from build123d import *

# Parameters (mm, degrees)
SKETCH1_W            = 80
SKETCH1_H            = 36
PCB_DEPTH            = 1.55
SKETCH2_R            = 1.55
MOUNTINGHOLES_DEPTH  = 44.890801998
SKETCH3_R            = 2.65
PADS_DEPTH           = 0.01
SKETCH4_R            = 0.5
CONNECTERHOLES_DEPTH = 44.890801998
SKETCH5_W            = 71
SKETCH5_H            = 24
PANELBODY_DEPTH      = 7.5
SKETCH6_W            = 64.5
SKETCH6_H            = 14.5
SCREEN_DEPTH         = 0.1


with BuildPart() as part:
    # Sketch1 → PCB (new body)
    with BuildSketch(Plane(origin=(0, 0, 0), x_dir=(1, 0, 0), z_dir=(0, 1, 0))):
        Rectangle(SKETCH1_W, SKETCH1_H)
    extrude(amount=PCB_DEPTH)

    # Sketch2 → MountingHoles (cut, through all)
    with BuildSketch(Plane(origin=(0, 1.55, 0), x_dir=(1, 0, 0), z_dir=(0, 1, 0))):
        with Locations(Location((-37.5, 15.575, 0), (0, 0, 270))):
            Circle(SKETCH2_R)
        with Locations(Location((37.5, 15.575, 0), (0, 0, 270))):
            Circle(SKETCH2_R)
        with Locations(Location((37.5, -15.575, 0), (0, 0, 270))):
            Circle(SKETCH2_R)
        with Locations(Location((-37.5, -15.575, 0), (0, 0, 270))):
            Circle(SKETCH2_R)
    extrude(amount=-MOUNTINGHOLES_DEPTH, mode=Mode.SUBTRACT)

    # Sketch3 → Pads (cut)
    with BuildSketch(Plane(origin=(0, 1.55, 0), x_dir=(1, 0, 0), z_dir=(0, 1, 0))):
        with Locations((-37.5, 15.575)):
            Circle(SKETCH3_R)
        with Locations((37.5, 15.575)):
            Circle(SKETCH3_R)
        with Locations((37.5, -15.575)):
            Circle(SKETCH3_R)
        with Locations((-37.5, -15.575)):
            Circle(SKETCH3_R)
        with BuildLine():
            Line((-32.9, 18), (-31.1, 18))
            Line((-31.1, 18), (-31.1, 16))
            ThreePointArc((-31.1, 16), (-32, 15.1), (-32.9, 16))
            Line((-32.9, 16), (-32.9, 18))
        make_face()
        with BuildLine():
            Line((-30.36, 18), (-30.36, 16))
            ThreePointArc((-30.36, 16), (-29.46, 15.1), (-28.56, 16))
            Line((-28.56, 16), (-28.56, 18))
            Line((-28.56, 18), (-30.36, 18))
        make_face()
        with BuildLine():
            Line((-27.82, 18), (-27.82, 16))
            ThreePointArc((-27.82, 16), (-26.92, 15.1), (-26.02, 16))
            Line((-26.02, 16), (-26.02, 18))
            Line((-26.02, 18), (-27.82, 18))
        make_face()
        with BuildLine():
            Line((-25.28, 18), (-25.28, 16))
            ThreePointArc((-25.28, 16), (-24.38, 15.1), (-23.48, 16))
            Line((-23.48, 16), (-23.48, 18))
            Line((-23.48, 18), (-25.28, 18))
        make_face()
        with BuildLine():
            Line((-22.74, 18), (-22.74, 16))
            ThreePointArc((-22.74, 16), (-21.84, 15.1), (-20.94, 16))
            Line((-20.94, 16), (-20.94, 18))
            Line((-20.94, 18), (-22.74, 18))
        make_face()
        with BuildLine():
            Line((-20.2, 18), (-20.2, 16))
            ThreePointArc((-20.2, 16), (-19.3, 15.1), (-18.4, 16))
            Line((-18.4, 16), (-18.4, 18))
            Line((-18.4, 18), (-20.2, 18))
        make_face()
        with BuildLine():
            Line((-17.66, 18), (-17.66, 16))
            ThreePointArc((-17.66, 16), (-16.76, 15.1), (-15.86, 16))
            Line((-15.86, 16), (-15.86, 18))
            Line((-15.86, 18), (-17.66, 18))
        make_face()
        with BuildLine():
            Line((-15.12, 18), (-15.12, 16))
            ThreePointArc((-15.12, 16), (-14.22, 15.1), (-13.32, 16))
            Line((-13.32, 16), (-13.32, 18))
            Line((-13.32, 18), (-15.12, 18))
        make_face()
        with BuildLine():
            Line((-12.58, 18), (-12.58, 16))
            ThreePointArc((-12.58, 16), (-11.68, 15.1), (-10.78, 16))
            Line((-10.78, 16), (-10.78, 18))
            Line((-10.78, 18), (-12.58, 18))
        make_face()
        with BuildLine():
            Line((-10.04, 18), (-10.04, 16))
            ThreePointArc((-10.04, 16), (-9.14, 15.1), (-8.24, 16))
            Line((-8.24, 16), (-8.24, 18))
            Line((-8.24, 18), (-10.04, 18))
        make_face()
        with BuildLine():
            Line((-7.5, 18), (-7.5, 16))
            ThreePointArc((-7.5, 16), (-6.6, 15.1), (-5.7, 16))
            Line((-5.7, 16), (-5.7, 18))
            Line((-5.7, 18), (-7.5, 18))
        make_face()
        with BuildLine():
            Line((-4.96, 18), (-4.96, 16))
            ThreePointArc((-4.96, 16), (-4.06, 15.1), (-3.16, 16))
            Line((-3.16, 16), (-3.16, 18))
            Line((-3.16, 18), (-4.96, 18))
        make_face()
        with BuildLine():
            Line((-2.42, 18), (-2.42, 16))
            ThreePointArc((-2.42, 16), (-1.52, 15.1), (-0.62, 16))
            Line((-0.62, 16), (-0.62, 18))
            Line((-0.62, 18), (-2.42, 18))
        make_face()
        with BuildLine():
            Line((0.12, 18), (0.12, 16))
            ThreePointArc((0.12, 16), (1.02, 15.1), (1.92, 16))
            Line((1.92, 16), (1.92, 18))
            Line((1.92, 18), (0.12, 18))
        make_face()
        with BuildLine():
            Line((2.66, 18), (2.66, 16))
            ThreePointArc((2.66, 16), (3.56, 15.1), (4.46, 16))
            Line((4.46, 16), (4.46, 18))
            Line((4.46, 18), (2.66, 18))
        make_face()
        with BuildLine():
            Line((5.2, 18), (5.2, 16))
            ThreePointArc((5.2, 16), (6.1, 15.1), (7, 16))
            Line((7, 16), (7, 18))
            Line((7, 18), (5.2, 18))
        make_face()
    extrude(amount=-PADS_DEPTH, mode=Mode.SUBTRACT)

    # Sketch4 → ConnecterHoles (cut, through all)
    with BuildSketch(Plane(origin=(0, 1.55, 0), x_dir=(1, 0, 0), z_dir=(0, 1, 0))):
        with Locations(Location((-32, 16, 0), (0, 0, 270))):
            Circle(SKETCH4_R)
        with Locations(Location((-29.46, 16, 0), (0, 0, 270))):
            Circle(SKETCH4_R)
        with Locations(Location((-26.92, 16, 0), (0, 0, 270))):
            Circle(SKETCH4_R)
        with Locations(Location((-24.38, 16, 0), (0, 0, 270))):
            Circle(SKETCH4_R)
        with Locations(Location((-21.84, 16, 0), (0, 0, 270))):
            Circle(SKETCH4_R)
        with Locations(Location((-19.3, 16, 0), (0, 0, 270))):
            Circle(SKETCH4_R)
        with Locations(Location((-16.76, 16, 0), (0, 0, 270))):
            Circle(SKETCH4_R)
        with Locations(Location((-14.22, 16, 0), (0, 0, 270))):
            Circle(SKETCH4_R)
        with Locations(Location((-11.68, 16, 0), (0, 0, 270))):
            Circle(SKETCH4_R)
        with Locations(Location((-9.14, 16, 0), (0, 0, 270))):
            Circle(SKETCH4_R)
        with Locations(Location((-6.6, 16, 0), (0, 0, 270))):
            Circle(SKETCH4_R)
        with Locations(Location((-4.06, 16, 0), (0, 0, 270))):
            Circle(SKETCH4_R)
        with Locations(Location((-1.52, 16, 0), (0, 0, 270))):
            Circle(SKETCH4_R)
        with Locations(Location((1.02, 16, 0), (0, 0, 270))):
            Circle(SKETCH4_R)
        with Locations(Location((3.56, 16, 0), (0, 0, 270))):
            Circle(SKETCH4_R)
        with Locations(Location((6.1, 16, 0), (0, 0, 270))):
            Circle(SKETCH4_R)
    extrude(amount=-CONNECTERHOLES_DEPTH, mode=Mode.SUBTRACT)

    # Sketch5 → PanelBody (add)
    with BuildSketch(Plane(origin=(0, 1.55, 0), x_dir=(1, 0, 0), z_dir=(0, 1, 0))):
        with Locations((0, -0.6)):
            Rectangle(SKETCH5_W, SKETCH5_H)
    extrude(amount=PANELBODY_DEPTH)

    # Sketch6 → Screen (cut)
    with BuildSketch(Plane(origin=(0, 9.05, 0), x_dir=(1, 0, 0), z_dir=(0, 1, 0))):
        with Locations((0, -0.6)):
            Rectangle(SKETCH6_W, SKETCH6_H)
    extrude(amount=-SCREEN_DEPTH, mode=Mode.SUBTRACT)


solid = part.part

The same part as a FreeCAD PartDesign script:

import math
import FreeCAD as App
import Part
import Sketcher
from FreeCAD import Vector
Q = App.Units.Quantity


def add_polygon(sketch, points):
    """Adds a closed chain of lines whose ends are joined by coincident constraints."""
    first, n = sketch.GeometryCount, len(points)
    for a, b in zip(points, points[1:] + points[:1]):
        sketch.addGeometry(Part.LineSegment(App.Vector(*a, 0), App.Vector(*b, 0)), False)
    for i in range(n):
        sketch.addConstraint(Sketcher.Constraint("Coincident", first + i, 2, first + (i + 1) % n, 1))

doc = App.newDocument("Part")
params = doc.addObject("Spreadsheet::Sheet", "Params")
for row, (alias, value) in enumerate([
    ("sketch1_width", "80 mm"),
    ("sketch1_height", "36 mm"),
    ("pad1_length", "1.55 mm"),
    ("sketch2_diameter", "3.1 mm"),
    ("sketch3_diameter", "5.3 mm"),
    ("sketch3_radius", "0.9 mm"),
    ("sketch3_height", "2 mm"),
    ("pocket2_length", "0.01 mm"),
    ("sketch4_diameter", "1 mm"),
    ("sketch5_width", "71 mm"),
    ("sketch5_height", "24 mm"),
    ("pad2_length", "7.5 mm"),
    ("sketch6_width", "64.5 mm"),
    ("sketch6_height", "14.5 mm"),
    ("pocket4_length", "0.1 mm"),
], start=1):
    params.set(f"A{row}", alias)
    params.set(f"B{row}", "=" + value)
    params.setAlias(f"B{row}", alias)

body = doc.addObject("PartDesign::Body", "Body")

# Sketch on XZ plane
sketch1 = body.newObject("Sketcher::SketchObject", "Sketch")
sketch1.AttachmentSupport = (doc.getObject("XZ_Plane"), [""])
sketch1.MapMode = "FlatFace"
add_polygon(sketch1, [(-40, -18), (-40, 18), (40, 18), (40, -18)])  # lines 0-3
sketch1.addConstraint(Sketcher.Constraint("Vertical", 0))
sketch1.addConstraint(Sketcher.Constraint("Horizontal", 1))
sketch1.addConstraint(Sketcher.Constraint("Vertical", 2))
sketch1.addConstraint(Sketcher.Constraint("Horizontal", 3))
sketch1.addConstraint(Sketcher.Constraint("Symmetric", 0, 2, 2, 2, -1, 1))
sketch1.addConstraint(Sketcher.Constraint("DistanceX", 1, 1, 1, 2, Q("80 mm")))
sketch1.addConstraint(Sketcher.Constraint("DistanceY", 0, 1, 0, 2, Q("36 mm")))
sketch1.setExpression("Constraints[9]", "Params.sketch1_width")
sketch1.setExpression("Constraints[10]", "Params.sketch1_height")
pad1 = body.newObject("PartDesign::Pad", "Pad")
pad1.Profile = sketch1
pad1.setExpression("Length", "Params.pad1_length")
pad1.Reversed = True

# Sketch on XZ plane
sketch2 = body.newObject("Sketcher::SketchObject", "Sketch001")
sketch2.AttachmentSupport = (doc.getObject("XZ_Plane"), [""])
sketch2.MapMode = "FlatFace"
sketch2.AttachmentOffset = App.Placement(Vector(0, 0, -1.55), App.Rotation())
sketch2.addGeometry(Part.Circle(Vector(-37.5, -15.575, 0), Vector(0, 0, 1), 1.55), False)
sketch2.addGeometry(Part.Circle(Vector(37.5, -15.575, 0), Vector(0, 0, 1), 1.55), False)
sketch2.addGeometry(Part.Circle(Vector(37.5, 15.575, 0), Vector(0, 0, 1), 1.55), False)
sketch2.addGeometry(Part.Circle(Vector(-37.5, 15.575, 0), Vector(0, 0, 1), 1.55), False)
sketch2.addConstraint(Sketcher.Constraint("Equal", 0, 1))
sketch2.addConstraint(Sketcher.Constraint("Equal", 1, 2))
sketch2.addConstraint(Sketcher.Constraint("Equal", 2, 3))
sketch2.addConstraint(Sketcher.Constraint("Symmetric", 0, 3, 2, 3, -1, 1))
sketch2.addConstraint(Sketcher.Constraint("Symmetric", 1, 3, 3, 3, -1, 1))
sketch2.addConstraint(Sketcher.Constraint("Symmetric", 0, 3, 1, 3, -2))
sketch2.addConstraint(Sketcher.Constraint("Diameter", 0, Q("3.1 mm")))
sketch2.addConstraint(Sketcher.Constraint("DistanceX", 0, 3, 1, 3, Q("75 mm")))
sketch2.addConstraint(Sketcher.Constraint("DistanceY", 1, 3, 2, 3, Q("31.15 mm")))
sketch2.setExpression("Constraints[6]", "Params.sketch2_diameter")
pocket1 = body.newObject("PartDesign::Pocket", "Pocket")
pocket1.Profile = sketch2
pocket1.Type = "ThroughAll"
pocket1.Reversed = True

# Sketch on XZ plane
sketch3 = body.newObject("Sketcher::SketchObject", "Sketch002")
sketch3.AttachmentSupport = (doc.getObject("XZ_Plane"), [""])
sketch3.MapMode = "FlatFace"
sketch3.AttachmentOffset = App.Placement(Vector(0, 0, -1.55), App.Rotation())
sketch3.addGeometry(Part.Circle(Vector(-37.5, -15.575, 0), Vector(0, 0, 1), 2.65), False)
sketch3.addGeometry(Part.Circle(Vector(37.5, -15.575, 0), Vector(0, 0, 1), 2.65), False)
sketch3.addGeometry(Part.Circle(Vector(37.5, 15.575, 0), Vector(0, 0, 1), 2.65), False)
sketch3.addGeometry(Part.Circle(Vector(-37.5, 15.575, 0), Vector(0, 0, 1), 2.65), False)
sketch3.addGeometry(Part.LineSegment(Vector(-31.1, -18, 0), Vector(-32.9, -18, 0)), False)
sketch3.addGeometry(Part.LineSegment(Vector(-32.9, -18, 0), Vector(-32.9, -16, 0)), False)
sketch3.addGeometry(Part.ArcOfCircle(Part.Circle(Vector(-32, -16, 0), Vector(0, 0, 1), 0.9), math.radians(0), math.radians(180)), False)
sketch3.addGeometry(Part.LineSegment(Vector(-31.1, -16, 0), Vector(-31.1, -18, 0)), False)
sketch3.addGeometry(Part.LineSegment(Vector(-30.36, -18, 0), Vector(-30.36, -16, 0)), False)
sketch3.addGeometry(Part.ArcOfCircle(Part.Circle(Vector(-29.46, -16, 0), Vector(0, 0, 1), 0.9), math.radians(0), math.radians(180)), False)
sketch3.addGeometry(Part.LineSegment(Vector(-28.56, -16, 0), Vector(-28.56, -18, 0)), False)
sketch3.addGeometry(Part.LineSegment(Vector(-28.56, -18, 0), Vector(-30.36, -18, 0)), False)
sketch3.addGeometry(Part.LineSegment(Vector(-27.82, -18, 0), Vector(-27.82, -16, 0)), False)
sketch3.addGeometry(Part.ArcOfCircle(Part.Circle(Vector(-26.92, -16, 0), Vector(0, 0, 1), 0.9), math.radians(0), math.radians(180)), False)
sketch3.addGeometry(Part.LineSegment(Vector(-26.02, -16, 0), Vector(-26.02, -18, 0)), False)
sketch3.addGeometry(Part.LineSegment(Vector(-26.02, -18, 0), Vector(-27.82, -18, 0)), False)
sketch3.addGeometry(Part.LineSegment(Vector(-25.28, -18, 0), Vector(-25.28, -16, 0)), False)
sketch3.addGeometry(Part.ArcOfCircle(Part.Circle(Vector(-24.38, -16, 0), Vector(0, 0, 1), 0.9), math.radians(0), math.radians(180)), False)
sketch3.addGeometry(Part.LineSegment(Vector(-23.48, -16, 0), Vector(-23.48, -18, 0)), False)
sketch3.addGeometry(Part.LineSegment(Vector(-23.48, -18, 0), Vector(-25.28, -18, 0)), False)
sketch3.addGeometry(Part.LineSegment(Vector(-22.74, -18, 0), Vector(-22.74, -16, 0)), False)
sketch3.addGeometry(Part.ArcOfCircle(Part.Circle(Vector(-21.84, -16, 0), Vector(0, 0, 1), 0.9), math.radians(0), math.radians(180)), False)
sketch3.addGeometry(Part.LineSegment(Vector(-20.94, -16, 0), Vector(-20.94, -18, 0)), False)
sketch3.addGeometry(Part.LineSegment(Vector(-20.94, -18, 0), Vector(-22.74, -18, 0)), False)
sketch3.addGeometry(Part.LineSegment(Vector(-20.2, -18, 0), Vector(-20.2, -16, 0)), False)
sketch3.addGeometry(Part.ArcOfCircle(Part.Circle(Vector(-19.3, -16, 0), Vector(0, 0, 1), 0.9), math.radians(0), math.radians(180)), False)
sketch3.addGeometry(Part.LineSegment(Vector(-18.4, -16, 0), Vector(-18.4, -18, 0)), False)
sketch3.addGeometry(Part.LineSegment(Vector(-18.4, -18, 0), Vector(-20.2, -18, 0)), False)
sketch3.addGeometry(Part.LineSegment(Vector(-17.66, -18, 0), Vector(-17.66, -16, 0)), False)
sketch3.addGeometry(Part.ArcOfCircle(Part.Circle(Vector(-16.76, -16, 0), Vector(0, 0, 1), 0.9), math.radians(0), math.radians(180)), False)
sketch3.addGeometry(Part.LineSegment(Vector(-15.86, -16, 0), Vector(-15.86, -18, 0)), False)
sketch3.addGeometry(Part.LineSegment(Vector(-15.86, -18, 0), Vector(-17.66, -18, 0)), False)
sketch3.addGeometry(Part.LineSegment(Vector(-15.12, -18, 0), Vector(-15.12, -16, 0)), False)
sketch3.addGeometry(Part.ArcOfCircle(Part.Circle(Vector(-14.22, -16, 0), Vector(0, 0, 1), 0.9), math.radians(0), math.radians(180)), False)
sketch3.addGeometry(Part.LineSegment(Vector(-13.32, -16, 0), Vector(-13.32, -18, 0)), False)
sketch3.addGeometry(Part.LineSegment(Vector(-13.32, -18, 0), Vector(-15.12, -18, 0)), False)
sketch3.addGeometry(Part.LineSegment(Vector(-12.58, -18, 0), Vector(-12.58, -16, 0)), False)
sketch3.addGeometry(Part.ArcOfCircle(Part.Circle(Vector(-11.68, -16, 0), Vector(0, 0, 1), 0.9), math.radians(0), math.radians(180)), False)
sketch3.addGeometry(Part.LineSegment(Vector(-10.78, -16, 0), Vector(-10.78, -18, 0)), False)
sketch3.addGeometry(Part.LineSegment(Vector(-10.78, -18, 0), Vector(-12.58, -18, 0)), False)
sketch3.addGeometry(Part.LineSegment(Vector(-10.04, -18, 0), Vector(-10.04, -16, 0)), False)
sketch3.addGeometry(Part.ArcOfCircle(Part.Circle(Vector(-9.14, -16, 0), Vector(0, 0, 1), 0.9), math.radians(0), math.radians(180)), False)
sketch3.addGeometry(Part.LineSegment(Vector(-8.24, -16, 0), Vector(-8.24, -18, 0)), False)
sketch3.addGeometry(Part.LineSegment(Vector(-8.24, -18, 0), Vector(-10.04, -18, 0)), False)
sketch3.addGeometry(Part.LineSegment(Vector(-7.5, -18, 0), Vector(-7.5, -16, 0)), False)
sketch3.addGeometry(Part.ArcOfCircle(Part.Circle(Vector(-6.6, -16, 0), Vector(0, 0, 1), 0.9), math.radians(0), math.radians(180)), False)
sketch3.addGeometry(Part.LineSegment(Vector(-5.7, -16, 0), Vector(-5.7, -18, 0)), False)
sketch3.addGeometry(Part.LineSegment(Vector(-5.7, -18, 0), Vector(-7.5, -18, 0)), False)
sketch3.addGeometry(Part.LineSegment(Vector(-4.96, -18, 0), Vector(-4.96, -16, 0)), False)
sketch3.addGeometry(Part.ArcOfCircle(Part.Circle(Vector(-4.06, -16, 0), Vector(0, 0, 1), 0.9), math.radians(0), math.radians(180)), False)
sketch3.addGeometry(Part.LineSegment(Vector(-3.16, -16, 0), Vector(-3.16, -18, 0)), False)
sketch3.addGeometry(Part.LineSegment(Vector(-3.16, -18, 0), Vector(-4.96, -18, 0)), False)
sketch3.addGeometry(Part.LineSegment(Vector(-2.42, -18, 0), Vector(-2.42, -16, 0)), False)
sketch3.addGeometry(Part.ArcOfCircle(Part.Circle(Vector(-1.52, -16, 0), Vector(0, 0, 1), 0.9), math.radians(0), math.radians(180)), False)
sketch3.addGeometry(Part.LineSegment(Vector(-0.62, -16, 0), Vector(-0.62, -18, 0)), False)
sketch3.addGeometry(Part.LineSegment(Vector(-0.62, -18, 0), Vector(-2.42, -18, 0)), False)
sketch3.addGeometry(Part.LineSegment(Vector(0.12, -18, 0), Vector(0.12, -16, 0)), False)
sketch3.addGeometry(Part.ArcOfCircle(Part.Circle(Vector(1.02, -16, 0), Vector(0, 0, 1), 0.9), math.radians(0), math.radians(180)), False)
sketch3.addGeometry(Part.LineSegment(Vector(1.92, -16, 0), Vector(1.92, -18, 0)), False)
sketch3.addGeometry(Part.LineSegment(Vector(1.92, -18, 0), Vector(0.12, -18, 0)), False)
sketch3.addGeometry(Part.LineSegment(Vector(2.66, -18, 0), Vector(2.66, -16, 0)), False)
sketch3.addGeometry(Part.ArcOfCircle(Part.Circle(Vector(3.56, -16, 0), Vector(0, 0, 1), 0.9), math.radians(0), math.radians(180)), False)
sketch3.addGeometry(Part.LineSegment(Vector(4.46, -16, 0), Vector(4.46, -18, 0)), False)
sketch3.addGeometry(Part.LineSegment(Vector(4.46, -18, 0), Vector(2.66, -18, 0)), False)
sketch3.addGeometry(Part.LineSegment(Vector(5.2, -18, 0), Vector(5.2, -16, 0)), False)
sketch3.addGeometry(Part.ArcOfCircle(Part.Circle(Vector(6.1, -16, 0), Vector(0, 0, 1), 0.9), math.radians(0), math.radians(180)), False)
sketch3.addGeometry(Part.LineSegment(Vector(7, -16, 0), Vector(7, -18, 0)), False)
sketch3.addGeometry(Part.LineSegment(Vector(7, -18, 0), Vector(5.2, -18, 0)), False)
sketch3.addConstraint(Sketcher.Constraint("Coincident", 4, 2, 5, 1))
sketch3.addConstraint(Sketcher.Constraint("Tangent", 5, 2, 6, 2))
sketch3.addConstraint(Sketcher.Constraint("Tangent", 6, 1, 7, 1))
sketch3.addConstraint(Sketcher.Constraint("Coincident", 7, 2, 4, 1))
sketch3.addConstraint(Sketcher.Constraint("Tangent", 8, 2, 9, 2))
sketch3.addConstraint(Sketcher.Constraint("Tangent", 9, 1, 10, 1))
sketch3.addConstraint(Sketcher.Constraint("Coincident", 10, 2, 11, 1))
sketch3.addConstraint(Sketcher.Constraint("Coincident", 11, 2, 8, 1))
sketch3.addConstraint(Sketcher.Constraint("Tangent", 12, 2, 13, 2))
sketch3.addConstraint(Sketcher.Constraint("Tangent", 13, 1, 14, 1))
sketch3.addConstraint(Sketcher.Constraint("Coincident", 14, 2, 15, 1))
sketch3.addConstraint(Sketcher.Constraint("Coincident", 15, 2, 12, 1))
sketch3.addConstraint(Sketcher.Constraint("Tangent", 16, 2, 17, 2))
sketch3.addConstraint(Sketcher.Constraint("Tangent", 17, 1, 18, 1))
sketch3.addConstraint(Sketcher.Constraint("Coincident", 18, 2, 19, 1))
sketch3.addConstraint(Sketcher.Constraint("Coincident", 19, 2, 16, 1))
sketch3.addConstraint(Sketcher.Constraint("Tangent", 20, 2, 21, 2))
sketch3.addConstraint(Sketcher.Constraint("Tangent", 21, 1, 22, 1))
sketch3.addConstraint(Sketcher.Constraint("Coincident", 22, 2, 23, 1))
sketch3.addConstraint(Sketcher.Constraint("Coincident", 23, 2, 20, 1))
sketch3.addConstraint(Sketcher.Constraint("Tangent", 24, 2, 25, 2))
sketch3.addConstraint(Sketcher.Constraint("Tangent", 25, 1, 26, 1))
sketch3.addConstraint(Sketcher.Constraint("Coincident", 26, 2, 27, 1))
sketch3.addConstraint(Sketcher.Constraint("Coincident", 27, 2, 24, 1))
sketch3.addConstraint(Sketcher.Constraint("Tangent", 28, 2, 29, 2))
sketch3.addConstraint(Sketcher.Constraint("Tangent", 29, 1, 30, 1))
sketch3.addConstraint(Sketcher.Constraint("Coincident", 30, 2, 31, 1))
sketch3.addConstraint(Sketcher.Constraint("Coincident", 31, 2, 28, 1))
sketch3.addConstraint(Sketcher.Constraint("Tangent", 32, 2, 33, 2))
sketch3.addConstraint(Sketcher.Constraint("Tangent", 33, 1, 34, 1))
sketch3.addConstraint(Sketcher.Constraint("Coincident", 34, 2, 35, 1))
sketch3.addConstraint(Sketcher.Constraint("Coincident", 35, 2, 32, 1))
sketch3.addConstraint(Sketcher.Constraint("Tangent", 36, 2, 37, 2))
sketch3.addConstraint(Sketcher.Constraint("Tangent", 37, 1, 38, 1))
sketch3.addConstraint(Sketcher.Constraint("Coincident", 38, 2, 39, 1))
sketch3.addConstraint(Sketcher.Constraint("Coincident", 39, 2, 36, 1))
sketch3.addConstraint(Sketcher.Constraint("Tangent", 40, 2, 41, 2))
sketch3.addConstraint(Sketcher.Constraint("Tangent", 41, 1, 42, 1))
sketch3.addConstraint(Sketcher.Constraint("Coincident", 42, 2, 43, 1))
sketch3.addConstraint(Sketcher.Constraint("Coincident", 43, 2, 40, 1))
sketch3.addConstraint(Sketcher.Constraint("Tangent", 44, 2, 45, 2))
sketch3.addConstraint(Sketcher.Constraint("Tangent", 45, 1, 46, 1))
sketch3.addConstraint(Sketcher.Constraint("Coincident", 46, 2, 47, 1))
sketch3.addConstraint(Sketcher.Constraint("Coincident", 47, 2, 44, 1))
sketch3.addConstraint(Sketcher.Constraint("Tangent", 48, 2, 49, 2))
sketch3.addConstraint(Sketcher.Constraint("Tangent", 49, 1, 50, 1))
sketch3.addConstraint(Sketcher.Constraint("Coincident", 50, 2, 51, 1))
sketch3.addConstraint(Sketcher.Constraint("Coincident", 51, 2, 48, 1))
sketch3.addConstraint(Sketcher.Constraint("Tangent", 52, 2, 53, 2))
sketch3.addConstraint(Sketcher.Constraint("Tangent", 53, 1, 54, 1))
sketch3.addConstraint(Sketcher.Constraint("Coincident", 54, 2, 55, 1))
sketch3.addConstraint(Sketcher.Constraint("Coincident", 55, 2, 52, 1))
sketch3.addConstraint(Sketcher.Constraint("Tangent", 56, 2, 57, 2))
sketch3.addConstraint(Sketcher.Constraint("Tangent", 57, 1, 58, 1))
sketch3.addConstraint(Sketcher.Constraint("Coincident", 58, 2, 59, 1))
sketch3.addConstraint(Sketcher.Constraint("Coincident", 59, 2, 56, 1))
sketch3.addConstraint(Sketcher.Constraint("Tangent", 60, 2, 61, 2))
sketch3.addConstraint(Sketcher.Constraint("Tangent", 61, 1, 62, 1))
sketch3.addConstraint(Sketcher.Constraint("Coincident", 62, 2, 63, 1))
sketch3.addConstraint(Sketcher.Constraint("Coincident", 63, 2, 60, 1))
sketch3.addConstraint(Sketcher.Constraint("Tangent", 64, 2, 65, 2))
sketch3.addConstraint(Sketcher.Constraint("Tangent", 65, 1, 66, 1))
sketch3.addConstraint(Sketcher.Constraint("Coincident", 66, 2, 67, 1))
sketch3.addConstraint(Sketcher.Constraint("Coincident", 67, 2, 64, 1))
sketch3.addConstraint(Sketcher.Constraint("Horizontal", 4))
sketch3.addConstraint(Sketcher.Constraint("Vertical", 5))
sketch3.addConstraint(Sketcher.Constraint("Vertical", 7))
sketch3.addConstraint(Sketcher.Constraint("Vertical", 8))
sketch3.addConstraint(Sketcher.Constraint("Vertical", 10))
sketch3.addConstraint(Sketcher.Constraint("Horizontal", 11))
sketch3.addConstraint(Sketcher.Constraint("Vertical", 12))
sketch3.addConstraint(Sketcher.Constraint("Vertical", 14))
sketch3.addConstraint(Sketcher.Constraint("Horizontal", 15))
sketch3.addConstraint(Sketcher.Constraint("Vertical", 16))
sketch3.addConstraint(Sketcher.Constraint("Vertical", 18))
sketch3.addConstraint(Sketcher.Constraint("Horizontal", 19))
sketch3.addConstraint(Sketcher.Constraint("Vertical", 20))
sketch3.addConstraint(Sketcher.Constraint("Vertical", 22))
sketch3.addConstraint(Sketcher.Constraint("Horizontal", 23))
sketch3.addConstraint(Sketcher.Constraint("Vertical", 24))
sketch3.addConstraint(Sketcher.Constraint("Vertical", 26))
sketch3.addConstraint(Sketcher.Constraint("Horizontal", 27))
sketch3.addConstraint(Sketcher.Constraint("Vertical", 28))
sketch3.addConstraint(Sketcher.Constraint("Vertical", 30))
sketch3.addConstraint(Sketcher.Constraint("Horizontal", 31))
sketch3.addConstraint(Sketcher.Constraint("Vertical", 32))
sketch3.addConstraint(Sketcher.Constraint("Vertical", 34))
sketch3.addConstraint(Sketcher.Constraint("Horizontal", 35))
sketch3.addConstraint(Sketcher.Constraint("Vertical", 36))
sketch3.addConstraint(Sketcher.Constraint("Vertical", 38))
sketch3.addConstraint(Sketcher.Constraint("Horizontal", 39))
sketch3.addConstraint(Sketcher.Constraint("Vertical", 40))
sketch3.addConstraint(Sketcher.Constraint("Vertical", 42))
sketch3.addConstraint(Sketcher.Constraint("Horizontal", 43))
sketch3.addConstraint(Sketcher.Constraint("Vertical", 44))
sketch3.addConstraint(Sketcher.Constraint("Vertical", 46))
sketch3.addConstraint(Sketcher.Constraint("Horizontal", 47))
sketch3.addConstraint(Sketcher.Constraint("Vertical", 48))
sketch3.addConstraint(Sketcher.Constraint("Vertical", 50))
sketch3.addConstraint(Sketcher.Constraint("Horizontal", 51))
sketch3.addConstraint(Sketcher.Constraint("Vertical", 52))
sketch3.addConstraint(Sketcher.Constraint("Vertical", 54))
sketch3.addConstraint(Sketcher.Constraint("Horizontal", 55))
sketch3.addConstraint(Sketcher.Constraint("Vertical", 56))
sketch3.addConstraint(Sketcher.Constraint("Vertical", 58))
sketch3.addConstraint(Sketcher.Constraint("Horizontal", 59))
sketch3.addConstraint(Sketcher.Constraint("Vertical", 60))
sketch3.addConstraint(Sketcher.Constraint("Vertical", 62))
sketch3.addConstraint(Sketcher.Constraint("Horizontal", 63))
sketch3.addConstraint(Sketcher.Constraint("Vertical", 64))
sketch3.addConstraint(Sketcher.Constraint("Vertical", 66))
sketch3.addConstraint(Sketcher.Constraint("Horizontal", 67))
sketch3.addConstraint(Sketcher.Constraint("Equal", 0, 1))
sketch3.addConstraint(Sketcher.Constraint("Equal", 1, 2))
sketch3.addConstraint(Sketcher.Constraint("Equal", 2, 3))
sketch3.addConstraint(Sketcher.Constraint("Equal", 6, 9))
sketch3.addConstraint(Sketcher.Constraint("Equal", 9, 13))
sketch3.addConstraint(Sketcher.Constraint("Equal", 13, 17))
sketch3.addConstraint(Sketcher.Constraint("Equal", 17, 21))
sketch3.addConstraint(Sketcher.Constraint("Equal", 21, 25))
sketch3.addConstraint(Sketcher.Constraint("Equal", 25, 29))
sketch3.addConstraint(Sketcher.Constraint("Equal", 29, 33))
sketch3.addConstraint(Sketcher.Constraint("Equal", 33, 37))
sketch3.addConstraint(Sketcher.Constraint("Equal", 37, 41))
sketch3.addConstraint(Sketcher.Constraint("Equal", 41, 45))
sketch3.addConstraint(Sketcher.Constraint("Equal", 45, 49))
sketch3.addConstraint(Sketcher.Constraint("Equal", 49, 53))
sketch3.addConstraint(Sketcher.Constraint("Equal", 53, 57))
sketch3.addConstraint(Sketcher.Constraint("Equal", 57, 61))
sketch3.addConstraint(Sketcher.Constraint("Equal", 61, 65))
sketch3.addConstraint(Sketcher.Constraint("Symmetric", 0, 3, 2, 3, -1, 1))
sketch3.addConstraint(Sketcher.Constraint("Symmetric", 1, 3, 3, 3, -1, 1))
sketch3.addConstraint(Sketcher.Constraint("Symmetric", 0, 3, 1, 3, -2))
sketch3.addConstraint(Sketcher.Constraint("Horizontal", 6, 3, 9, 3))
sketch3.addConstraint(Sketcher.Constraint("Horizontal", 9, 3, 13, 3))
sketch3.addConstraint(Sketcher.Constraint("Horizontal", 13, 3, 17, 3))
sketch3.addConstraint(Sketcher.Constraint("Horizontal", 17, 3, 21, 3))
sketch3.addConstraint(Sketcher.Constraint("Horizontal", 21, 3, 25, 3))
sketch3.addConstraint(Sketcher.Constraint("Horizontal", 25, 3, 29, 3))
sketch3.addConstraint(Sketcher.Constraint("Horizontal", 29, 3, 33, 3))
sketch3.addConstraint(Sketcher.Constraint("Horizontal", 33, 3, 37, 3))
sketch3.addConstraint(Sketcher.Constraint("Horizontal", 37, 3, 41, 3))
sketch3.addConstraint(Sketcher.Constraint("Horizontal", 41, 3, 45, 3))
sketch3.addConstraint(Sketcher.Constraint("Horizontal", 45, 3, 49, 3))
sketch3.addConstraint(Sketcher.Constraint("Horizontal", 49, 3, 53, 3))
sketch3.addConstraint(Sketcher.Constraint("Horizontal", 53, 3, 57, 3))
sketch3.addConstraint(Sketcher.Constraint("Horizontal", 57, 3, 61, 3))
sketch3.addConstraint(Sketcher.Constraint("Horizontal", 61, 3, 65, 3))
sketch3.addConstraint(Sketcher.Constraint("Horizontal", 7, 2, 10, 2))
sketch3.addConstraint(Sketcher.Constraint("Horizontal", 11, 2, 14, 2))
sketch3.addConstraint(Sketcher.Constraint("Horizontal", 15, 2, 18, 2))
sketch3.addConstraint(Sketcher.Constraint("Horizontal", 19, 2, 22, 2))
sketch3.addConstraint(Sketcher.Constraint("Horizontal", 23, 2, 26, 2))
sketch3.addConstraint(Sketcher.Constraint("Horizontal", 27, 2, 30, 2))
sketch3.addConstraint(Sketcher.Constraint("Horizontal", 31, 2, 34, 2))
sketch3.addConstraint(Sketcher.Constraint("Horizontal", 35, 2, 38, 2))
sketch3.addConstraint(Sketcher.Constraint("Horizontal", 39, 2, 42, 2))
sketch3.addConstraint(Sketcher.Constraint("Horizontal", 43, 2, 46, 2))
sketch3.addConstraint(Sketcher.Constraint("Horizontal", 47, 2, 50, 2))
sketch3.addConstraint(Sketcher.Constraint("Horizontal", 51, 2, 54, 2))
sketch3.addConstraint(Sketcher.Constraint("Horizontal", 55, 2, 58, 2))
sketch3.addConstraint(Sketcher.Constraint("Horizontal", 59, 2, 62, 2))
sketch3.addConstraint(Sketcher.Constraint("Horizontal", 63, 2, 66, 2))
sketch3.addConstraint(Sketcher.Constraint("Diameter", 0, Q("5.3 mm")))
sketch3.addConstraint(Sketcher.Constraint("Radius", 6, Q("0.9 mm")))
sketch3.addConstraint(Sketcher.Constraint("DistanceY", 5, 1, 5, 2, Q("2 mm")))
sketch3.addConstraint(Sketcher.Constraint("DistanceX", 6, 3, -1, 1, Q("32 mm")))
sketch3.addConstraint(Sketcher.Constraint("DistanceY", 6, 3, -1, 1, Q("16 mm")))
sketch3.addConstraint(Sketcher.Constraint("DistanceX", -1, 1, 65, 1, Q("7 mm")))
sketch3.addConstraint(Sketcher.Constraint("DistanceX", 0, 3, -1, 1, Q("37.5 mm")))
sketch3.addConstraint(Sketcher.Constraint("DistanceX", 25, 3, -1, 1, Q("19.3 mm")))
sketch3.addConstraint(Sketcher.Constraint("DistanceX", 45, 3, -1, 1, Q("6.6 mm")))
sketch3.addConstraint(Sketcher.Constraint("DistanceX", 9, 3, -1, 1, Q("29.46 mm")))
sketch3.addConstraint(Sketcher.Constraint("DistanceX", 13, 3, -1, 1, Q("26.92 mm")))
sketch3.addConstraint(Sketcher.Constraint("DistanceX", 17, 3, -1, 1, Q("24.38 mm")))
sketch3.addConstraint(Sketcher.Constraint("DistanceX", 21, 3, -1, 1, Q("21.84 mm")))
sketch3.addConstraint(Sketcher.Constraint("DistanceX", 29, 3, -1, 1, Q("16.76 mm")))
sketch3.addConstraint(Sketcher.Constraint("DistanceX", 33, 3, -1, 1, Q("14.22 mm")))
sketch3.addConstraint(Sketcher.Constraint("DistanceX", 37, 3, -1, 1, Q("11.68 mm")))
sketch3.addConstraint(Sketcher.Constraint("DistanceX", 41, 3, -1, 1, Q("9.14 mm")))
sketch3.addConstraint(Sketcher.Constraint("DistanceX", 49, 3, -1, 1, Q("4.06 mm")))
sketch3.addConstraint(Sketcher.Constraint("DistanceX", 53, 3, -1, 1, Q("1.52 mm")))
sketch3.addConstraint(Sketcher.Constraint("DistanceX", -1, 1, 57, 3, Q("1.02 mm")))
sketch3.addConstraint(Sketcher.Constraint("DistanceX", -1, 1, 61, 3, Q("3.56 mm")))
sketch3.addConstraint(Sketcher.Constraint("DistanceY", 0, 3, -1, 1, Q("15.575 mm")))
sketch3.setExpression("Constraints[163]", "Params.sketch3_diameter")
sketch3.setExpression("Constraints[164]", "Params.sketch3_radius")
sketch3.setExpression("Constraints[165]", "Params.sketch3_height")
pocket2 = body.newObject("PartDesign::Pocket", "Pocket001")
pocket2.Profile = sketch3
pocket2.setExpression("Length", "Params.pocket2_length")
pocket2.Reversed = True

# Sketch on XZ plane
sketch4 = body.newObject("Sketcher::SketchObject", "Sketch003")
sketch4.AttachmentSupport = (doc.getObject("XZ_Plane"), [""])
sketch4.MapMode = "FlatFace"
sketch4.AttachmentOffset = App.Placement(Vector(0, 0, -1.55), App.Rotation())
sketch4.addGeometry(Part.Circle(Vector(-32, -16, 0), Vector(0, 0, 1), 0.5), False)
sketch4.addGeometry(Part.Circle(Vector(-29.46, -16, 0), Vector(0, 0, 1), 0.5), False)
sketch4.addGeometry(Part.Circle(Vector(-26.92, -16, 0), Vector(0, 0, 1), 0.5), False)
sketch4.addGeometry(Part.Circle(Vector(-24.38, -16, 0), Vector(0, 0, 1), 0.5), False)
sketch4.addGeometry(Part.Circle(Vector(-21.84, -16, 0), Vector(0, 0, 1), 0.5), False)
sketch4.addGeometry(Part.Circle(Vector(-19.3, -16, 0), Vector(0, 0, 1), 0.5), False)
sketch4.addGeometry(Part.Circle(Vector(-16.76, -16, 0), Vector(0, 0, 1), 0.5), False)
sketch4.addGeometry(Part.Circle(Vector(-14.22, -16, 0), Vector(0, 0, 1), 0.5), False)
sketch4.addGeometry(Part.Circle(Vector(-11.68, -16, 0), Vector(0, 0, 1), 0.5), False)
sketch4.addGeometry(Part.Circle(Vector(-9.14, -16, 0), Vector(0, 0, 1), 0.5), False)
sketch4.addGeometry(Part.Circle(Vector(-6.6, -16, 0), Vector(0, 0, 1), 0.5), False)
sketch4.addGeometry(Part.Circle(Vector(-4.06, -16, 0), Vector(0, 0, 1), 0.5), False)
sketch4.addGeometry(Part.Circle(Vector(-1.52, -16, 0), Vector(0, 0, 1), 0.5), False)
sketch4.addGeometry(Part.Circle(Vector(1.02, -16, 0), Vector(0, 0, 1), 0.5), False)
sketch4.addGeometry(Part.Circle(Vector(3.56, -16, 0), Vector(0, 0, 1), 0.5), False)
sketch4.addGeometry(Part.Circle(Vector(6.1, -16, 0), Vector(0, 0, 1), 0.5), False)
sketch4.addConstraint(Sketcher.Constraint("Equal", 0, 1))
sketch4.addConstraint(Sketcher.Constraint("Equal", 1, 2))
sketch4.addConstraint(Sketcher.Constraint("Equal", 2, 3))
sketch4.addConstraint(Sketcher.Constraint("Equal", 3, 4))
sketch4.addConstraint(Sketcher.Constraint("Equal", 4, 5))
sketch4.addConstraint(Sketcher.Constraint("Equal", 5, 6))
sketch4.addConstraint(Sketcher.Constraint("Equal", 6, 7))
sketch4.addConstraint(Sketcher.Constraint("Equal", 7, 8))
sketch4.addConstraint(Sketcher.Constraint("Equal", 8, 9))
sketch4.addConstraint(Sketcher.Constraint("Equal", 9, 10))
sketch4.addConstraint(Sketcher.Constraint("Equal", 10, 11))
sketch4.addConstraint(Sketcher.Constraint("Equal", 11, 12))
sketch4.addConstraint(Sketcher.Constraint("Equal", 12, 13))
sketch4.addConstraint(Sketcher.Constraint("Equal", 13, 14))
sketch4.addConstraint(Sketcher.Constraint("Equal", 14, 15))
sketch4.addConstraint(Sketcher.Constraint("Horizontal", 0, 3, 1, 3))
sketch4.addConstraint(Sketcher.Constraint("Horizontal", 1, 3, 2, 3))
sketch4.addConstraint(Sketcher.Constraint("Horizontal", 2, 3, 3, 3))
sketch4.addConstraint(Sketcher.Constraint("Horizontal", 3, 3, 4, 3))
sketch4.addConstraint(Sketcher.Constraint("Horizontal", 4, 3, 5, 3))
sketch4.addConstraint(Sketcher.Constraint("Horizontal", 5, 3, 6, 3))
sketch4.addConstraint(Sketcher.Constraint("Horizontal", 6, 3, 7, 3))
sketch4.addConstraint(Sketcher.Constraint("Horizontal", 7, 3, 8, 3))
sketch4.addConstraint(Sketcher.Constraint("Horizontal", 8, 3, 9, 3))
sketch4.addConstraint(Sketcher.Constraint("Horizontal", 9, 3, 10, 3))
sketch4.addConstraint(Sketcher.Constraint("Horizontal", 10, 3, 11, 3))
sketch4.addConstraint(Sketcher.Constraint("Horizontal", 11, 3, 12, 3))
sketch4.addConstraint(Sketcher.Constraint("Horizontal", 12, 3, 13, 3))
sketch4.addConstraint(Sketcher.Constraint("Horizontal", 13, 3, 14, 3))
sketch4.addConstraint(Sketcher.Constraint("Horizontal", 14, 3, 15, 3))
sketch4.addConstraint(Sketcher.Constraint("Diameter", 0, Q("1 mm")))
sketch4.addConstraint(Sketcher.Constraint("DistanceX", 0, 3, -1, 1, Q("32 mm")))
sketch4.addConstraint(Sketcher.Constraint("DistanceY", 0, 3, -1, 1, Q("16 mm")))
sketch4.addConstraint(Sketcher.Constraint("DistanceX", 5, 3, -1, 1, Q("19.3 mm")))
sketch4.addConstraint(Sketcher.Constraint("DistanceX", 10, 3, -1, 1, Q("6.6 mm")))
sketch4.addConstraint(Sketcher.Constraint("DistanceX", -1, 1, 15, 3, Q("6.1 mm")))
sketch4.addConstraint(Sketcher.Constraint("DistanceX", 1, 3, 6, 3, Q("12.7 mm")))
sketch4.addConstraint(Sketcher.Constraint("DistanceX", 2, 3, 7, 3, Q("12.7 mm")))
sketch4.addConstraint(Sketcher.Constraint("DistanceX", 3, 3, 8, 3, Q("12.7 mm")))
sketch4.addConstraint(Sketcher.Constraint("DistanceX", 4, 3, 9, 3, Q("12.7 mm")))
sketch4.addConstraint(Sketcher.Constraint("DistanceX", 6, 3, 11, 3, Q("12.7 mm")))
sketch4.addConstraint(Sketcher.Constraint("DistanceX", 7, 3, 12, 3, Q("12.7 mm")))
sketch4.addConstraint(Sketcher.Constraint("DistanceX", 8, 3, 13, 3, Q("12.7 mm")))
sketch4.addConstraint(Sketcher.Constraint("DistanceX", 9, 3, 14, 3, Q("12.7 mm")))
sketch4.addConstraint(Sketcher.Constraint("DistanceX", 1, 3, -1, 1, Q("29.46 mm")))
sketch4.addConstraint(Sketcher.Constraint("DistanceX", 2, 3, -1, 1, Q("26.92 mm")))
sketch4.addConstraint(Sketcher.Constraint("DistanceX", 3, 3, -1, 1, Q("24.38 mm")))
sketch4.addConstraint(Sketcher.Constraint("DistanceX", 4, 3, -1, 1, Q("21.84 mm")))
sketch4.setExpression("Constraints[30]", "Params.sketch4_diameter")
pocket3 = body.newObject("PartDesign::Pocket", "Pocket002")
pocket3.Profile = sketch4
pocket3.Type = "ThroughAll"
pocket3.Reversed = True

# Sketch on XZ plane
sketch5 = body.newObject("Sketcher::SketchObject", "Sketch004")
sketch5.AttachmentSupport = (doc.getObject("XZ_Plane"), [""])
sketch5.MapMode = "FlatFace"
sketch5.AttachmentOffset = App.Placement(Vector(0, 0, -1.55), App.Rotation())
add_polygon(sketch5, [(-35.5, -11.4), (-35.5, 12.6), (35.5, 12.6), (35.5, -11.4)])  # lines 0-3
sketch5.addConstraint(Sketcher.Constraint("Vertical", 0))
sketch5.addConstraint(Sketcher.Constraint("Horizontal", 1))
sketch5.addConstraint(Sketcher.Constraint("Vertical", 2))
sketch5.addConstraint(Sketcher.Constraint("Horizontal", 3))
sketch5.addConstraint(Sketcher.Constraint("DistanceX", 1, 1, 1, 2, Q("71 mm")))
sketch5.addConstraint(Sketcher.Constraint("DistanceY", 0, 1, 0, 2, Q("24 mm")))
sketch5.addConstraint(Sketcher.Constraint("DistanceX", 0, 2, -1, 1, Q("35.5 mm")))
sketch5.addConstraint(Sketcher.Constraint("DistanceY", -1, 1, 0, 2, Q("12.6 mm")))
sketch5.setExpression("Constraints[8]", "Params.sketch5_width")
sketch5.setExpression("Constraints[9]", "Params.sketch5_height")
pad2 = body.newObject("PartDesign::Pad", "Pad001")
pad2.Profile = sketch5
pad2.setExpression("Length", "Params.pad2_length")
pad2.Reversed = True

# Sketch on XZ plane
sketch6 = body.newObject("Sketcher::SketchObject", "Sketch005")
sketch6.AttachmentSupport = (doc.getObject("XZ_Plane"), [""])
sketch6.MapMode = "FlatFace"
sketch6.AttachmentOffset = App.Placement(Vector(0, 0, -9.05), App.Rotation())
add_polygon(sketch6, [(-32.25, -6.65), (-32.25, 7.85), (32.25, 7.85), (32.25, -6.65)])  # lines 0-3
sketch6.addConstraint(Sketcher.Constraint("Vertical", 0))
sketch6.addConstraint(Sketcher.Constraint("Horizontal", 1))
sketch6.addConstraint(Sketcher.Constraint("Vertical", 2))
sketch6.addConstraint(Sketcher.Constraint("Horizontal", 3))
sketch6.addConstraint(Sketcher.Constraint("DistanceX", 1, 1, 1, 2, Q("64.5 mm")))
sketch6.addConstraint(Sketcher.Constraint("DistanceY", 0, 1, 0, 2, Q("14.5 mm")))
sketch6.addConstraint(Sketcher.Constraint("DistanceX", 0, 2, -1, 1, Q("32.25 mm")))
sketch6.addConstraint(Sketcher.Constraint("DistanceY", -1, 1, 0, 2, Q("7.85 mm")))
sketch6.setExpression("Constraints[8]", "Params.sketch6_width")
sketch6.setExpression("Constraints[9]", "Params.sketch6_height")
pocket4 = body.newObject("PartDesign::Pocket", "Pocket003")
pocket4.Profile = sketch6
pocket4.setExpression("Length", "Params.pocket4_length")
pocket4.Reversed = True

doc.recompute()
